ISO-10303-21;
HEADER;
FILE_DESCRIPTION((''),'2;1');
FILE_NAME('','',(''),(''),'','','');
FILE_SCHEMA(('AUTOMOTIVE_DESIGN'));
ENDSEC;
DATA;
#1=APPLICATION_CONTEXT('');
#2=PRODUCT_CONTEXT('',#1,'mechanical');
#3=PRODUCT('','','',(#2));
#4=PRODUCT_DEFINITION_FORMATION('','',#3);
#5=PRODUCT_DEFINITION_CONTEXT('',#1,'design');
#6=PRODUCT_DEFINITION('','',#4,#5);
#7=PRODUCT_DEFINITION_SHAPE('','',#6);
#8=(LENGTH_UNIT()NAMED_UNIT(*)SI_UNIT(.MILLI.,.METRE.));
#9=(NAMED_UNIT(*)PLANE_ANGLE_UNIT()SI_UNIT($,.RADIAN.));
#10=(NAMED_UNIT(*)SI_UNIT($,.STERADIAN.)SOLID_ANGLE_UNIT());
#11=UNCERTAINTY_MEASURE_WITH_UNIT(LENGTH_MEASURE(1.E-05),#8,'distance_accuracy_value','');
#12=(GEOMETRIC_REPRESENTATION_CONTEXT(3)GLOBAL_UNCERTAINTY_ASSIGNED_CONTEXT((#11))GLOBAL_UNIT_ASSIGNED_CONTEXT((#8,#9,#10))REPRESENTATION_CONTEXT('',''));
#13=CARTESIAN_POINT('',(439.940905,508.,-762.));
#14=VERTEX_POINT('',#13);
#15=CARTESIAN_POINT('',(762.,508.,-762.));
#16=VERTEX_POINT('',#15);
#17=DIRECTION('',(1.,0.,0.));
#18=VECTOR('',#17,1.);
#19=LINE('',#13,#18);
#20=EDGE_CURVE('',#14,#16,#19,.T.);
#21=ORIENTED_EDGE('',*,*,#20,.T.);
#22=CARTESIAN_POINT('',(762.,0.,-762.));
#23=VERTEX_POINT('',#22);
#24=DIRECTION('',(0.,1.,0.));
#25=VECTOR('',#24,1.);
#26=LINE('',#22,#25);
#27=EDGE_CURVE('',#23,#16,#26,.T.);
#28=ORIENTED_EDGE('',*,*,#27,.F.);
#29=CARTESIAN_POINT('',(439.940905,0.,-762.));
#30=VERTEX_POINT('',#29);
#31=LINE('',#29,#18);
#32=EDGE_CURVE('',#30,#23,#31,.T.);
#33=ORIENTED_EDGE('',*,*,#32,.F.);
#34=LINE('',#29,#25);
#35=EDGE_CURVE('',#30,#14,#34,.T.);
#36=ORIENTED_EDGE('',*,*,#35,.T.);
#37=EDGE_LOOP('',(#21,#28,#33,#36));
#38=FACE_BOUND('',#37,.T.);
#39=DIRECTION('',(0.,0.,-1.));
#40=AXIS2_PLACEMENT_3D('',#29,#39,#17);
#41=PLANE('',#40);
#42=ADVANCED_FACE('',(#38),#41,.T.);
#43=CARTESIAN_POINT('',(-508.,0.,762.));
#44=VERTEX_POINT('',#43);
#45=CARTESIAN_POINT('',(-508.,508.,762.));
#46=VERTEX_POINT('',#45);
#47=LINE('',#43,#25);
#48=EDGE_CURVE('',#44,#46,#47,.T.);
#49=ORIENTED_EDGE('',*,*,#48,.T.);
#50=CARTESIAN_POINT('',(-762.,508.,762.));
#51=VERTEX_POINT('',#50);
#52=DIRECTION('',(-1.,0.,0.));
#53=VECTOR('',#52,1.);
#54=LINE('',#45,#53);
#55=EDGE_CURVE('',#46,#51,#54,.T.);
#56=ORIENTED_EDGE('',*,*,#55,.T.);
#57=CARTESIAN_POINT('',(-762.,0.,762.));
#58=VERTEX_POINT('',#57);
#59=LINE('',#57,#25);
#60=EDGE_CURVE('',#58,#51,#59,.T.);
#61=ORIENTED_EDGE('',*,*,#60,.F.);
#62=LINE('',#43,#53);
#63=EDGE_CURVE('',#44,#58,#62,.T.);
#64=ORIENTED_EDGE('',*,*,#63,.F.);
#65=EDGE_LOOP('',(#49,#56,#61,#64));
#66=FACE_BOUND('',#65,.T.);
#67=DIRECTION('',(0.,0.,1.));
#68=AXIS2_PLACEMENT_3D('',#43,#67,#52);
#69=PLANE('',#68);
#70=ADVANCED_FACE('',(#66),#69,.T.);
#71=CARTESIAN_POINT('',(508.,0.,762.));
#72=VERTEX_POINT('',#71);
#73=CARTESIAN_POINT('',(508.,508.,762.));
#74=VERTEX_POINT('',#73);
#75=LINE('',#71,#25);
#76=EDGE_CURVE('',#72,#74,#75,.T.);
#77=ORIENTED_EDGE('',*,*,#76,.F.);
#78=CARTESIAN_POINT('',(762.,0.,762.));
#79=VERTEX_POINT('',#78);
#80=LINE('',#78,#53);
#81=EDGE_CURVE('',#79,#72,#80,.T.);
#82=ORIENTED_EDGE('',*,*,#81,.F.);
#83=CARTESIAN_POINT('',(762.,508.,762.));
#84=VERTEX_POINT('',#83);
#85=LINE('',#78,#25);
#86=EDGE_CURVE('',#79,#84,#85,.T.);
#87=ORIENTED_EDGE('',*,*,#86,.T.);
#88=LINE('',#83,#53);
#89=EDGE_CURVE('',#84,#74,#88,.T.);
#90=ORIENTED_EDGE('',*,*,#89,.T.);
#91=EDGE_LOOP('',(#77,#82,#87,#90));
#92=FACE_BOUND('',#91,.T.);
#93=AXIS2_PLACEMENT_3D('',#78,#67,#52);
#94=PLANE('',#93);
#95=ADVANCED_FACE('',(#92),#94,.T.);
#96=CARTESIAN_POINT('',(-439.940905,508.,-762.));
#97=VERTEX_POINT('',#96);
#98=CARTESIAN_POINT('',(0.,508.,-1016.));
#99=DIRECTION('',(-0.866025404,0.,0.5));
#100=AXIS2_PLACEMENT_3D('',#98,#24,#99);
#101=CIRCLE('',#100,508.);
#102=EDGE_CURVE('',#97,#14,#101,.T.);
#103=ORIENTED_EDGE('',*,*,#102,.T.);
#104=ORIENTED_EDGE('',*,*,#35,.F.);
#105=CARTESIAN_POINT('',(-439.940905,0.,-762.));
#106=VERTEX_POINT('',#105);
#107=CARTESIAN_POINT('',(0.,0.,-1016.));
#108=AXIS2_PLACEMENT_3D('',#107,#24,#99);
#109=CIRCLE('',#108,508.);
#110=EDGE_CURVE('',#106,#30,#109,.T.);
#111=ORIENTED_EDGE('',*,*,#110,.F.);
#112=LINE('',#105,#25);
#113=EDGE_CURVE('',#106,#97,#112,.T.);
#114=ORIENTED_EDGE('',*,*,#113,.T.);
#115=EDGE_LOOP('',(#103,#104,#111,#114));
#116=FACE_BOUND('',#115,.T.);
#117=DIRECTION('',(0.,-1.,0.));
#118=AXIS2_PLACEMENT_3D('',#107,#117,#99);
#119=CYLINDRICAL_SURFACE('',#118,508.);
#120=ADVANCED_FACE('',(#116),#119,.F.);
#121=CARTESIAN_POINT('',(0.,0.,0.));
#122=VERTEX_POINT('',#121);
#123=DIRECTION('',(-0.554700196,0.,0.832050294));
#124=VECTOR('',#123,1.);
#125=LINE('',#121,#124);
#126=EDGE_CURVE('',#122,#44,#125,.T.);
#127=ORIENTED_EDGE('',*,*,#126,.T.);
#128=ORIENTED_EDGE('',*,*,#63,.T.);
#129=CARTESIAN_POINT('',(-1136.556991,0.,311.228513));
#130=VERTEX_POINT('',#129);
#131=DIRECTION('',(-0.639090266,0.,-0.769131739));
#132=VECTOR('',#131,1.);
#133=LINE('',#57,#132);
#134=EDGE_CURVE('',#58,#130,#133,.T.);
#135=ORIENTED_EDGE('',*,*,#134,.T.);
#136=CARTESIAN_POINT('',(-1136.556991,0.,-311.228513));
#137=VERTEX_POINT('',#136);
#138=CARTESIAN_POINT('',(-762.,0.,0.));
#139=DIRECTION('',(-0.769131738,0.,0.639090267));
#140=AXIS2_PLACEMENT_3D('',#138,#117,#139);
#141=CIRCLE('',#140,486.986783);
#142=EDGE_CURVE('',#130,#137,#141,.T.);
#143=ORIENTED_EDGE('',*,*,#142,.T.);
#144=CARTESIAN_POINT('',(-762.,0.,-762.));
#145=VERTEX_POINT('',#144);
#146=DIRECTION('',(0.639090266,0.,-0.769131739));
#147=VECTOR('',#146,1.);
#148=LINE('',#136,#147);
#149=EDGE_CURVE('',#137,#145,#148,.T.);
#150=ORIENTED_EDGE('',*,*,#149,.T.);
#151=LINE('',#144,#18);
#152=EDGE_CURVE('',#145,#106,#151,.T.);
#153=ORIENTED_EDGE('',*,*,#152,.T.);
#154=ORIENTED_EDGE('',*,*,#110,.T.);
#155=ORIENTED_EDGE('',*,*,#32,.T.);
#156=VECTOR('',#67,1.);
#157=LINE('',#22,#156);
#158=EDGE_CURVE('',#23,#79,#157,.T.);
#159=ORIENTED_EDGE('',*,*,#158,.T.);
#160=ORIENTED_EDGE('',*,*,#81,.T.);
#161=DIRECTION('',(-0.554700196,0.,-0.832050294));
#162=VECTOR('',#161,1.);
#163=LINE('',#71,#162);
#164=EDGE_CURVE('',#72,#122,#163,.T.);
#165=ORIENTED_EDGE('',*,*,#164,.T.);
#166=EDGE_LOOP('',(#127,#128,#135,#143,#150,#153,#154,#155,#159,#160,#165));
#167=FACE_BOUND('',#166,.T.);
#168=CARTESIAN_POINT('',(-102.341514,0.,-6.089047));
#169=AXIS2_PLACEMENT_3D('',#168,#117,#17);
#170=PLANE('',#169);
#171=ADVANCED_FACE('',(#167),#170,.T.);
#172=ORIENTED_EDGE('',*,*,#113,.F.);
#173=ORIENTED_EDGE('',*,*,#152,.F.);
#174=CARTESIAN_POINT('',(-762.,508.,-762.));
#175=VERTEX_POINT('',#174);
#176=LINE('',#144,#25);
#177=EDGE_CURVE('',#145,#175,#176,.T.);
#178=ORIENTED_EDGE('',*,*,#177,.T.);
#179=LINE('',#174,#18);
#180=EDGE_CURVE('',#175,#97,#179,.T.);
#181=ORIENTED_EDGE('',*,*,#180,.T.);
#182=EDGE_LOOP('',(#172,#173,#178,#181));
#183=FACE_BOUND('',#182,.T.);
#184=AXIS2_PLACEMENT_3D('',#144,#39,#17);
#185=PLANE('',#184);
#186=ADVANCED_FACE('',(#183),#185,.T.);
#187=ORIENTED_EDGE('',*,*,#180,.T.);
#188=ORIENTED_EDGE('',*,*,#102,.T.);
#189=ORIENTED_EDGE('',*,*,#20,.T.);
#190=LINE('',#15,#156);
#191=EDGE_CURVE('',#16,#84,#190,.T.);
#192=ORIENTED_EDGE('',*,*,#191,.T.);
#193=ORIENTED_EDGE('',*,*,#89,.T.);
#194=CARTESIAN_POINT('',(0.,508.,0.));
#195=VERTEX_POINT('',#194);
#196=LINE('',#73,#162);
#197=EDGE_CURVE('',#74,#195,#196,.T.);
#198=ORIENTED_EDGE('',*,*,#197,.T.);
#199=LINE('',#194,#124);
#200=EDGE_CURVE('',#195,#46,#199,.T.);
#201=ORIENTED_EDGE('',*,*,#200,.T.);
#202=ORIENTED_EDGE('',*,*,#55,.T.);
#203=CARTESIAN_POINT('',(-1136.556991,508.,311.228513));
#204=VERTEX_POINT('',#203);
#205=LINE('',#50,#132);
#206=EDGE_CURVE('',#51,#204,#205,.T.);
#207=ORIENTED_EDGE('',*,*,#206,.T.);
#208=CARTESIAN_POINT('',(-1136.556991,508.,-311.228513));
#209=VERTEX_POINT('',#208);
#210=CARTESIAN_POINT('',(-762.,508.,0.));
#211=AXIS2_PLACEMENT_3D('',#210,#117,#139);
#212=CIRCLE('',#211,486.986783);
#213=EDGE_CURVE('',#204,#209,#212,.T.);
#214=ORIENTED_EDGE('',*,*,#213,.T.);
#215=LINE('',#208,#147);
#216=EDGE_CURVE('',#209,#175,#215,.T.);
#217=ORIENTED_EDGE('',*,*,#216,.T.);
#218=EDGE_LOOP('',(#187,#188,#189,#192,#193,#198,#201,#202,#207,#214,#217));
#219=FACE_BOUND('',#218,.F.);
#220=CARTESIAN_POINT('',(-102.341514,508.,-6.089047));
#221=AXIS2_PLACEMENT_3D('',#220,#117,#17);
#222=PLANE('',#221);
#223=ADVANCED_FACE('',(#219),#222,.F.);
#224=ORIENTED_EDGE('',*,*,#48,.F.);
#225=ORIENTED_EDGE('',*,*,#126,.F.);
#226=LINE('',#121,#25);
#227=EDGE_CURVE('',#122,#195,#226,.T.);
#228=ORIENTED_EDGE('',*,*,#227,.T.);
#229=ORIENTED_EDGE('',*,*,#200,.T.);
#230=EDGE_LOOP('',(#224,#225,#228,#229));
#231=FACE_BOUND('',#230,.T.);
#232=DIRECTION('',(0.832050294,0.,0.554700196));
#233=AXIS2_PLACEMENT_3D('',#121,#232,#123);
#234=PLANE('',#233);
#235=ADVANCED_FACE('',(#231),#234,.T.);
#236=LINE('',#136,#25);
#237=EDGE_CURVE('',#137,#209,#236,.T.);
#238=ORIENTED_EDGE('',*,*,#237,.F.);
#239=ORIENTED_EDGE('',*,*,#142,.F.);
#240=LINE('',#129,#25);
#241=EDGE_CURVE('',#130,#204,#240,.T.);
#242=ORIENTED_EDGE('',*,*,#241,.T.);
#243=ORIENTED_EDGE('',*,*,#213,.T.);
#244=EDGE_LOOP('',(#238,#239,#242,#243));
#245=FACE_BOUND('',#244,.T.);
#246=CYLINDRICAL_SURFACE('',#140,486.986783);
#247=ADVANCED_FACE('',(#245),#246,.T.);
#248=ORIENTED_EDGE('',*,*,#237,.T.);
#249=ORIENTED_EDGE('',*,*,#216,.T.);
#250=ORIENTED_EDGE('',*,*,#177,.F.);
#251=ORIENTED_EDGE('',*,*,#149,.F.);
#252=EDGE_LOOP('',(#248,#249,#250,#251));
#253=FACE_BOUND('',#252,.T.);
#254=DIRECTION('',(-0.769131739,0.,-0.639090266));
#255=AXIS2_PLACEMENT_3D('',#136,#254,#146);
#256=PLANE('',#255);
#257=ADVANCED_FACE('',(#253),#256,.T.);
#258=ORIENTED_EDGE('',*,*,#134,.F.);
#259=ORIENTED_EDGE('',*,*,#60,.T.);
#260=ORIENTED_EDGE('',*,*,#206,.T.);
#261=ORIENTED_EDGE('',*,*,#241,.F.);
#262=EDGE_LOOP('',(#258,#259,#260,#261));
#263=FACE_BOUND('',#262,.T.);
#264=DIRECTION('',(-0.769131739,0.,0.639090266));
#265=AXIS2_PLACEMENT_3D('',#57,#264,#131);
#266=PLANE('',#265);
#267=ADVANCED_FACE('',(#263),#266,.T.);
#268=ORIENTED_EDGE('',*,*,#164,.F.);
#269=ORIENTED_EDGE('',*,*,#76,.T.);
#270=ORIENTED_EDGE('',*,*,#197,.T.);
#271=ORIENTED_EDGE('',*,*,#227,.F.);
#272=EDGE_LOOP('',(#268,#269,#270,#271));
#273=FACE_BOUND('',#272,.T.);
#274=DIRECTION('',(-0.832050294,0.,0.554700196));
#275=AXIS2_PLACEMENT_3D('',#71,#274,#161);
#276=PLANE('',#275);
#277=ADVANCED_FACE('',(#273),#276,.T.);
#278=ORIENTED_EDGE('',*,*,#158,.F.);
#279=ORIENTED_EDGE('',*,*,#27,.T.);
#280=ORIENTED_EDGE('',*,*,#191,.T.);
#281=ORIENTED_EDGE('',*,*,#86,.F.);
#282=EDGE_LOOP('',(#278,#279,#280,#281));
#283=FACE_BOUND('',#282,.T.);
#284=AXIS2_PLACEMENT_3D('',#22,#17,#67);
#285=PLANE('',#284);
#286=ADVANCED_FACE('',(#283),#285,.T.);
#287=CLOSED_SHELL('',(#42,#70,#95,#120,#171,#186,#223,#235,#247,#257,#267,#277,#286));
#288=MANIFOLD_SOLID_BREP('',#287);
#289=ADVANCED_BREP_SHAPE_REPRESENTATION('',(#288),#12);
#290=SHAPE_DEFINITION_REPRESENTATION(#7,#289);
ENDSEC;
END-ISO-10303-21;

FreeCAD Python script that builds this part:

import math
import FreeCAD as App
import Part
import Sketcher
Q = App.Units.Quantity

doc = App.newDocument("Part")
body = doc.addObject("PartDesign::Body", "Body")

# Sketch on XZ plane
sketch1 = body.newObject("Sketcher::SketchObject", "Sketch")
sketch1.AttachmentSupport = (doc.getObject("XZ_Plane"), [""])
sketch1.MapMode = "FlatFace"
sketch1.addGeometry(Part.LineSegment(App.Vector(508, 762, 0), App.Vector(0, 0, 0)), False)
sketch1.addGeometry(Part.LineSegment(App.Vector(0, 0, 0), App.Vector(-508, 762, 0)), False)
sketch1.addGeometry(Part.LineSegment(App.Vector(-508, 762, 0), App.Vector(-762, 762, 0)), False)
sketch1.addGeometry(Part.LineSegment(App.Vector(-762, 762, 0), App.Vector(-1137, 311, 0)), False)
sketch1.addGeometry(Part.ArcOfCircle(Part.Circle(App.Vector(-762, 0, 0), App.Vector(0, 0, 1), 487), math.radians(140), math.radians(220)), False)
sketch1.addGeometry(Part.LineSegment(App.Vector(-1137, -311, 0), App.Vector(-762, -762, 0)), False)
sketch1.addGeometry(Part.LineSegment(App.Vector(-762, -762, 0), App.Vector(-440, -762, 0)), False)
sketch1.addGeometry(Part.ArcOfCircle(Part.Circle(App.Vector(0, -1016, 0), App.Vector(0, 0, 1), 508), math.radians(30), math.radians(150)), False)
sketch1.addGeometry(Part.LineSegment(App.Vector(440, -762, 0), App.Vector(762, -762, 0)), False)
sketch1.addGeometry(Part.LineSegment(App.Vector(762, -762, 0), App.Vector(762, 762, 0)), False)
sketch1.addGeometry(Part.LineSegment(App.Vector(762, 762, 0), App.Vector(508, 762, 0)), False)
sketch1.addConstraint(Sketcher.Constraint("Coincident", 0, 2, 1, 1))
sketch1.addConstraint(Sketcher.Constraint("Coincident", 1, 2, 2, 1))
sketch1.addConstraint(Sketcher.Constraint("Coincident", 2, 2, 3, 1))
sketch1.addConstraint(Sketcher.Constraint("Tangent", 3, 2, 4, 1))
sketch1.addConstraint(Sketcher.Constraint("Tangent", 4, 2, 5, 1))
sketch1.addConstraint(Sketcher.Constraint("Coincident", 5, 2, 6, 1))
sketch1.addConstraint(Sketcher.Constraint("Coincident", 6, 2, 7, 2))
sketch1.addConstraint(Sketcher.Constraint("Coincident", 7, 1, 8, 1))
sketch1.addConstraint(Sketcher.Constraint("Coincident", 8, 2, 9, 1))
sketch1.addConstraint(Sketcher.Constraint("Coincident", 9, 2, 10, 1))
sketch1.addConstraint(Sketcher.Constraint("Coincident", 10, 2, 0, 1))
sketch1.addConstraint(Sketcher.Constraint("Horizontal", 2))
sketch1.addConstraint(Sketcher.Constraint("Horizontal", 6))
sketch1.addConstraint(Sketcher.Constraint("Horizontal", 8))
sketch1.addConstraint(Sketcher.Constraint("Vertical", 9))
sketch1.addConstraint(Sketcher.Constraint("Horizontal", 10))
sketch1.addConstraint(Sketcher.Constraint("Coincident", 0, 2, -1, 1))
sketch1.addConstraint(Sketcher.Constraint("Symmetric", 2, 2, 8, 2, -1, 1))
sketch1.addConstraint(Sketcher.Constraint("Symmetric", 5, 2, 9, 2, -1, 1))
sketch1.addConstraint(Sketcher.Constraint("Symmetric", 1, 2, 10, 2, -2))
sketch1.addConstraint(Sketcher.Constraint("PointOnObject", 4, 3, -1))
sketch1.addConstraint(Sketcher.Constraint("PointOnObject", 7, 3, -2))
sketch1.addConstraint(Sketcher.Constraint("Vertical", 4, 3, 2, 2))
sketch1.addConstraint(Sketcher.Constraint("Radius", 7, Q("20 in")))
sketch1.addConstraint(Sketcher.Constraint("DistanceX", 2, 2, 2, 1, Q("10 in")))
sketch1.addConstraint(Sketcher.Constraint("DistanceY", 9, 1, 9, 2, Q("60 in")))
sketch1.addConstraint(Sketcher.Constraint("DistanceX", 4, 3, -1, 1, Q("30 in")))
sketch1.addConstraint(Sketcher.Constraint("DistanceY", 7, 3, -1, 1, Q("40 in")))
sketch1.addConstraint(Sketcher.Constraint("Radius", 4, Q("486.986783 mm")))
pad1 = body.newObject("PartDesign::Pad", "Pad")
pad1.Profile = sketch1
pad1.Length = Q("20 in")
pad1.Reversed = True

doc.recompute()
